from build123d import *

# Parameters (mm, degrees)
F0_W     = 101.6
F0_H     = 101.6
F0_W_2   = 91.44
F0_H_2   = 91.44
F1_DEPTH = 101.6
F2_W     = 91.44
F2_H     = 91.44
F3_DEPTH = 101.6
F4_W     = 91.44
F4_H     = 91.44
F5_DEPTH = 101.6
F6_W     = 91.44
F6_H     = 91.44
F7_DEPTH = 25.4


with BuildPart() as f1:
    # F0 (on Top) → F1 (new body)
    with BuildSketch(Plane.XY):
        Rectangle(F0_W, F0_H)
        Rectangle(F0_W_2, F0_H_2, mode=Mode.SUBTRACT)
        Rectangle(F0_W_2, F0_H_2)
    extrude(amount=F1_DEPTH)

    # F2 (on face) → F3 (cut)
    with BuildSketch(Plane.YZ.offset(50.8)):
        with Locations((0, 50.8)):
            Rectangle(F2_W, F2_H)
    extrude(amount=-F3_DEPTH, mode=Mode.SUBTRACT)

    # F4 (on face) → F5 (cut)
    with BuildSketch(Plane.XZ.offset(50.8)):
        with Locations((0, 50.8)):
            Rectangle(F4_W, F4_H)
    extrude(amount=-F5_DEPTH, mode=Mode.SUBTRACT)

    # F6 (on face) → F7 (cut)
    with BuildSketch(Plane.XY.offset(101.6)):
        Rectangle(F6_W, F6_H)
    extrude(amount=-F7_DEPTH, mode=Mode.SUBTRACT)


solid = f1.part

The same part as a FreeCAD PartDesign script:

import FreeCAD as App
import Part
import Sketcher
Q = App.Units.Quantity


def add_polygon(sketch, points):
    """Adds a closed chain of lines whose ends are joined by coincident constraints."""
    first, n = sketch.GeometryCount, len(points)
    for a, b in zip(points, points[1:] + points[:1]):
        sketch.addGeometry(Part.LineSegment(App.Vector(*a, 0), App.Vector(*b, 0)), False)
    for i in range(n):
        sketch.addConstraint(Sketcher.Constraint("Coincident", first + i, 2, first + (i + 1) % n, 1))

doc = App.newDocument("Part")
body = doc.addObject("PartDesign::Body", "Body")

# Sketch on XY plane
sketch1 = doc.addObject("Sketcher::SketchObject", "Sketch")
body.addObject(sketch1)
sketch1.AttachmentSupport = (doc.XY_Plane, [""])
sketch1.MapMode = "FlatFace"
add_polygon(sketch1, [(-51, 51), (-51, -51), (51, -51), (51, 51)])  # lines 0-3
sketch1.addConstraint(Sketcher.Constraint("Vertical", 0))
sketch1.addConstraint(Sketcher.Constraint("Horizontal", 1))
sketch1.addConstraint(Sketcher.Constraint("Vertical", 2))
sketch1.addConstraint(Sketcher.Constraint("Horizontal", 3))
sketch1.addConstraint(Sketcher.Constraint("Symmetric", 0, 2, 2, 2, -1, 1))
sketch1.addConstraint(Sketcher.Constraint("Equal", 3, 0))
sketch1.addConstraint(Sketcher.Constraint("DistanceX", 1, 1, 1, 2, Q("4 in")))
pad1 = doc.addObject("PartDesign::Pad", "Pad")
body.addObject(pad1)
pad1.Profile = sketch1
pad1.Length = Q("4 in")

# Sketch on YZ plane
sketch2 = doc.addObject("Sketcher::SketchObject", "Sketch001")
body.addObject(sketch2)
sketch2.AttachmentSupport = (doc.YZ_Plane, [""])
sketch2.MapMode = "FlatFace"
sketch2.AttachmentOffset = App.Placement(App.Vector(0, 0, 2 * 25.4), App.Rotation())
add_polygon(sketch2, [(-46, 97), (-46, 5), (46, 5), (46, 97)])  # lines 0-3
sketch2.addConstraint(Sketcher.Constraint("Vertical", 0))
sketch2.addConstraint(Sketcher.Constraint("Horizontal", 1))
sketch2.addConstraint(Sketcher.Constraint("Vertical", 2))
sketch2.addConstraint(Sketcher.Constraint("Horizontal", 3))
sketch2.addConstraint(Sketcher.Constraint("Equal", 3, 0))
sketch2.addConstraint(Sketcher.Constraint("DistanceX", 1, 1, 1, 2, Q("3.6 in")))
sketch2.addConstraint(Sketcher.Constraint("DistanceX", 0, 2, -1, 1, Q("1.8 in")))
sketch2.addConstraint(Sketcher.Constraint("DistanceY", -1, 1, 0, 2, Q("0.2 in")))
pocket1 = doc.addObject("PartDesign::Pocket", "Pocket")
body.addObject(pocket1)
pocket1.Profile = sketch2
pocket1.Length = Q("4 in")

# Sketch on XZ plane
sketch3 = doc.addObject("Sketcher::SketchObject", "Sketch002")
body.addObject(sketch3)
sketch3.AttachmentSupport = (doc.XZ_Plane, [""])
sketch3.MapMode = "FlatFace"
sketch3.AttachmentOffset = App.Placement(App.Vector(0, 0, 2 * 25.4), App.Rotation())
add_polygon(sketch3, [(-46, 97), (-46, 5), (46, 5), (46, 97)])  # lines 0-3
sketch3.addConstraint(Sketcher.Constraint("Vertical", 0))
sketch3.addConstraint(Sketcher.Constraint("Horizontal", 1))
sketch3.addConstraint(Sketcher.Constraint("Vertical", 2))
sketch3.addConstraint(Sketcher.Constraint("Horizontal", 3))
sketch3.addConstraint(Sketcher.Constraint("Equal", 3, 0))
sketch3.addConstraint(Sketcher.Constraint("DistanceX", 1, 1, 1, 2, Q("3.6 in")))
sketch3.addConstraint(Sketcher.Constraint("DistanceX", 0, 2, -1, 1, Q("1.8 in")))
sketch3.addConstraint(Sketcher.Constraint("DistanceY", -1, 1, 0, 2, Q("0.2 in")))
pocket2 = doc.addObject("PartDesign::Pocket", "Pocket001")
body.addObject(pocket2)
pocket2.Profile = sketch3
pocket2.Length = Q("4 in")

# Sketch on XY plane
sketch4 = doc.addObject("Sketcher::SketchObject", "Sketch003")
body.addObject(sketch4)
sketch4.AttachmentSupport = (doc.XY_Plane, [""])
sketch4.MapMode = "FlatFace"
sketch4.AttachmentOffset = App.Placement(App.Vector(0, 0, 4 * 25.4), App.Rotation())
add_polygon(sketch4, [(-46, 46), (-46, -46), (46, -46), (46, 46)])  # lines 0-3
sketch4.addConstraint(Sketcher.Constraint("Vertical", 0))
sketch4.addConstraint(Sketcher.Constraint("Horizontal", 1))
sketch4.addConstraint(Sketcher.Constraint("Vertical", 2))
sketch4.addConstraint(Sketcher.Constraint("Horizontal", 3))
sketch4.addConstraint(Sketcher.Constraint("Symmetric", 0, 2, 2, 2, -1, 1))
sketch4.addConstraint(Sketcher.Constraint("Equal", 3, 0))
sketch4.addConstraint(Sketcher.Constraint("DistanceX", 1, 1, 1, 2, Q("3.6 in")))
pocket3 = doc.addObject("PartDesign::Pocket", "Pocket002")
body.addObject(pocket3)
pocket3.Profile = sketch4
pocket3.Length = Q("1 in")

doc.recompute()
